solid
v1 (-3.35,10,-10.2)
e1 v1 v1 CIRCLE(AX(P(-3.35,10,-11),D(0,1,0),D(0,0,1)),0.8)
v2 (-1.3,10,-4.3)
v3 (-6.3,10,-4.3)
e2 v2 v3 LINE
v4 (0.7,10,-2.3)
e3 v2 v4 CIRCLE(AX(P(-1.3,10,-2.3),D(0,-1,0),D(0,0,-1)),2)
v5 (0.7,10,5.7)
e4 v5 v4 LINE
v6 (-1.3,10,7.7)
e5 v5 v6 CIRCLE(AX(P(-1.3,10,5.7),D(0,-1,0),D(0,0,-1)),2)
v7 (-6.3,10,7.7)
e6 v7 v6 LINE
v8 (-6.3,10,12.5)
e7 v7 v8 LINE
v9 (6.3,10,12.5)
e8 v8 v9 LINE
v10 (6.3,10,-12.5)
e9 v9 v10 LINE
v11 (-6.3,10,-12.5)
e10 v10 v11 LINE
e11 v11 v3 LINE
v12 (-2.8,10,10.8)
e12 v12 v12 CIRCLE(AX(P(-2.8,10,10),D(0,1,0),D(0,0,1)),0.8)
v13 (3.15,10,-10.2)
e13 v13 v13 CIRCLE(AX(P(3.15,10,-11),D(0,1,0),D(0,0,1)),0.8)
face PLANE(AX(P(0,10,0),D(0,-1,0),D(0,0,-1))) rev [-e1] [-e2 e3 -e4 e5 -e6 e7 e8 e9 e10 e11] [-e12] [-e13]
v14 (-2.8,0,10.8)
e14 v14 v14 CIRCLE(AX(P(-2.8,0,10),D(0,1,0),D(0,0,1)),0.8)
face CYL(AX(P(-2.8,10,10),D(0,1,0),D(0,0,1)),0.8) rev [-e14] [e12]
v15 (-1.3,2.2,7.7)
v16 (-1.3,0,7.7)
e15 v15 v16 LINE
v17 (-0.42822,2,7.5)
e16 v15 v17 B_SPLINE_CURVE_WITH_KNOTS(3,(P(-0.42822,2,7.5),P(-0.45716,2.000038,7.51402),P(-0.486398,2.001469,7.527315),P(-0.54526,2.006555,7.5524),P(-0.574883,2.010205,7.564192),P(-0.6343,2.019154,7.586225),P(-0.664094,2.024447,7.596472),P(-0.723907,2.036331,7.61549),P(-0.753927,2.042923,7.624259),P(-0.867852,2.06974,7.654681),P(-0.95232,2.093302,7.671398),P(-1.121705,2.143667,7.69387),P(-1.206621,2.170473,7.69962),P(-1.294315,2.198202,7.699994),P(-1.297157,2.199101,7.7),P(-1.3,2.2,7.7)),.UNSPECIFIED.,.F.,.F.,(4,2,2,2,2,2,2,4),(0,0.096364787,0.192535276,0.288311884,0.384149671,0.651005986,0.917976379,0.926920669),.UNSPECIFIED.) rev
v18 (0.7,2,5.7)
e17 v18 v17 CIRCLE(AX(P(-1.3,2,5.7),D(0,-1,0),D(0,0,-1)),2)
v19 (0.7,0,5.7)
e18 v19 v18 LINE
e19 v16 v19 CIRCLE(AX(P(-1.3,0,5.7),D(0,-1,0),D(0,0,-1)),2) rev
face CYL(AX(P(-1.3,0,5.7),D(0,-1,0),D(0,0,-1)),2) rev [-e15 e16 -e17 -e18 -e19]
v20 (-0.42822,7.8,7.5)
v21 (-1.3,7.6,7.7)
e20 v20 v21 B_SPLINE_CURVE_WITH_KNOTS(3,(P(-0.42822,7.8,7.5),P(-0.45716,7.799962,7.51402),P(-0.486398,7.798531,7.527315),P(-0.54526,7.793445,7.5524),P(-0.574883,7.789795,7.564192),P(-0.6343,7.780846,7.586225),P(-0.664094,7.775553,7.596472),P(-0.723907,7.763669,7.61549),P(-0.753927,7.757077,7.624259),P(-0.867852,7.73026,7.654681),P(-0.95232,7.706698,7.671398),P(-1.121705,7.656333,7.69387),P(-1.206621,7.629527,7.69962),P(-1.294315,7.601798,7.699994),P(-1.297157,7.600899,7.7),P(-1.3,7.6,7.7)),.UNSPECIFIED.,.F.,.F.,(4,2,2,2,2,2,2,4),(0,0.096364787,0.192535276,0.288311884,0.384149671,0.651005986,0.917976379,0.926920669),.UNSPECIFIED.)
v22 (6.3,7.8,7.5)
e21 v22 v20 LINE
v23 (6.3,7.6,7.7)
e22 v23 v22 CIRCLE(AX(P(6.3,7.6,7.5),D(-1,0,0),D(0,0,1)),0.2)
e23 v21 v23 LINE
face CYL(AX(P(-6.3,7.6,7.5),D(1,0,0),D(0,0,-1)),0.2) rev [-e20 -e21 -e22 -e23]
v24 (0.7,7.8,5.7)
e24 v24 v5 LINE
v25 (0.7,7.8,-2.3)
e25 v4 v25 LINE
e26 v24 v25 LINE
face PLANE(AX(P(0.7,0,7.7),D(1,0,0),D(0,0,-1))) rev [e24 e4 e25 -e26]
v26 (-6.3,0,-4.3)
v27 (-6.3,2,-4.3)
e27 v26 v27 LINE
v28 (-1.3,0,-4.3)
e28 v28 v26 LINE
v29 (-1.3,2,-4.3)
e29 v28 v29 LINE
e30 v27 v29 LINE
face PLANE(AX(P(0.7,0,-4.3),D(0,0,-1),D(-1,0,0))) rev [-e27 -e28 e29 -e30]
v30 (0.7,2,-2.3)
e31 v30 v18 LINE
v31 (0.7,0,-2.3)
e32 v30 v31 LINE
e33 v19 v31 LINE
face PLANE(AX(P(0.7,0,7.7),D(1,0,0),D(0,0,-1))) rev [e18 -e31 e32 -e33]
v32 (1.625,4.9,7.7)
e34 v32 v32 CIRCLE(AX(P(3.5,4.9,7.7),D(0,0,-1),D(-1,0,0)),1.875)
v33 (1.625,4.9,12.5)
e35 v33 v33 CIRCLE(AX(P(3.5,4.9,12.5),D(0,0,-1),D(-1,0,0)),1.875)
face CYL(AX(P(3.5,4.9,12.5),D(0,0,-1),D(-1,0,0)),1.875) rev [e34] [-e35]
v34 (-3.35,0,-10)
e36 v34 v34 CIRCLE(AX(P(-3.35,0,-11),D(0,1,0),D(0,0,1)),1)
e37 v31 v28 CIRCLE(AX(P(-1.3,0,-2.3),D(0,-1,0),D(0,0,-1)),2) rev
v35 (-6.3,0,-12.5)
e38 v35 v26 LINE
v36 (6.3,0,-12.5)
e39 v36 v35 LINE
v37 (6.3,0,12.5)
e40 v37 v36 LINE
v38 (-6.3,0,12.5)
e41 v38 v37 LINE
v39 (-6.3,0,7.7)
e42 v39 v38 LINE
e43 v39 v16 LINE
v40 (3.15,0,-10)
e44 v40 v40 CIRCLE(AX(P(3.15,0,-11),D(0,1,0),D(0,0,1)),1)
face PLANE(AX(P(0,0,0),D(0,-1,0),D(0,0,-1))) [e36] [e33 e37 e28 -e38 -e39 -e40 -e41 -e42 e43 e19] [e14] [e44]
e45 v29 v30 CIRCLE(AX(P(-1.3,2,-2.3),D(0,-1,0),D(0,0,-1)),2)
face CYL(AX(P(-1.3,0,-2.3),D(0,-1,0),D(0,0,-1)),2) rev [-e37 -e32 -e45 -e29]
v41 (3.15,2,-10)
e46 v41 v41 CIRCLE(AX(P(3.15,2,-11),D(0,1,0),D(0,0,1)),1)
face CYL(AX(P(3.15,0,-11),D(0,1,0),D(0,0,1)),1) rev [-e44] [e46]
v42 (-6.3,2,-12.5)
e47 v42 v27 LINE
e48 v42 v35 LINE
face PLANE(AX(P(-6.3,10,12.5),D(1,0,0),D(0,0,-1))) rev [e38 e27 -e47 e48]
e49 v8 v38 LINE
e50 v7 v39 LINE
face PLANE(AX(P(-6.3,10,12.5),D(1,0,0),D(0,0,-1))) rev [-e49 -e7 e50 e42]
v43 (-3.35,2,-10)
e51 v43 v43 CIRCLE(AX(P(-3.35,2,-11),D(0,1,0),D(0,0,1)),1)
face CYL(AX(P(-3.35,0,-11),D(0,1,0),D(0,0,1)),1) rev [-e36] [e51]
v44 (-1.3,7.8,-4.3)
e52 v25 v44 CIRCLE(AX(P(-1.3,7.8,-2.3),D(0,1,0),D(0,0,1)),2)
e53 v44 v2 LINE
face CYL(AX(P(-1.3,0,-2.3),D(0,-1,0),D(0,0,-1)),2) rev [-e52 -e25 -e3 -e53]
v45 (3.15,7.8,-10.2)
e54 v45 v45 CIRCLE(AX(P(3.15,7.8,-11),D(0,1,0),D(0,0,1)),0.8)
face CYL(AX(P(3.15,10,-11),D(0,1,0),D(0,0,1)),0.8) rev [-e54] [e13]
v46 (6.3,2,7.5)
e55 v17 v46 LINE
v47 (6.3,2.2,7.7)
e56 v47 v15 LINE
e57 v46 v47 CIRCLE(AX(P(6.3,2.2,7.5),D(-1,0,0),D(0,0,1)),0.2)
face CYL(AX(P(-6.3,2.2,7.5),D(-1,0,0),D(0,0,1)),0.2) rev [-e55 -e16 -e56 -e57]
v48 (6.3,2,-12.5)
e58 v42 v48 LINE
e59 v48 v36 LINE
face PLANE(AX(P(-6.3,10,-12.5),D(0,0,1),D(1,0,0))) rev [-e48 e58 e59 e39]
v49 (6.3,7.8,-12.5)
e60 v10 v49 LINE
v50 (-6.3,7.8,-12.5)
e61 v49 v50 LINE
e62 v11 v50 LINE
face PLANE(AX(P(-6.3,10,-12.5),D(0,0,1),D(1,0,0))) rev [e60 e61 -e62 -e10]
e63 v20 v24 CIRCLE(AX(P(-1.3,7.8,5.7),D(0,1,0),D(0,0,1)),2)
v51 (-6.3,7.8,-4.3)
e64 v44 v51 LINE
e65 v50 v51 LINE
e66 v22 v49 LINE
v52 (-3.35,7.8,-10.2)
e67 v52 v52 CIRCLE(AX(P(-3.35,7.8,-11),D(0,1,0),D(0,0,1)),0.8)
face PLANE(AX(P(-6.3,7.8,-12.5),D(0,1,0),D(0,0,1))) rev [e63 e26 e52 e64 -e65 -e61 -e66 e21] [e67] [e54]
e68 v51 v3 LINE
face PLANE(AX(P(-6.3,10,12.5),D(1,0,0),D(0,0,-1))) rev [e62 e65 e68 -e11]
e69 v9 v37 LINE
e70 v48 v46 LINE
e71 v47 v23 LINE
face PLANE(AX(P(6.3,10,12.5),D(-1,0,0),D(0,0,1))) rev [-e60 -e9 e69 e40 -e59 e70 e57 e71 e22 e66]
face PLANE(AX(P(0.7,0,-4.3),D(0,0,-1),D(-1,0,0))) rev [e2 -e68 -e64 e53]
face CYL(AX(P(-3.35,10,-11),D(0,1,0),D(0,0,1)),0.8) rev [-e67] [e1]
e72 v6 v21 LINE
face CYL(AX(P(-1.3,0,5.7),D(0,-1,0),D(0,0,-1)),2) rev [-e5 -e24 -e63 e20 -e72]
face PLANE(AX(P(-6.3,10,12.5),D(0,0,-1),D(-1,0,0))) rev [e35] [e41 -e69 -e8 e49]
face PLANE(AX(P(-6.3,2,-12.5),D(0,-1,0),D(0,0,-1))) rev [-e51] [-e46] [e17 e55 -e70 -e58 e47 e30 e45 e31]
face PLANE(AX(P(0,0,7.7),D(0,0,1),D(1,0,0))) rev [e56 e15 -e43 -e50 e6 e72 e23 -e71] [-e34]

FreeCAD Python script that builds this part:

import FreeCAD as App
import Part
import Sketcher
from FreeCAD import Vector


def edges_at(feature, points):
    """Names of the edges that pass closest to the given points."""
    edges = feature.Shape.Edges
    near = lambda p: min(range(len(edges)), key=lambda i: edges[i].distToShape(Part.Vertex(*p))[0])
    return sorted({f"Edge{near(p) + 1}" for p in points})


def add_polygon(sketch, points):
    """Adds a closed chain of lines whose ends are joined by coincident constraints."""
    first, n = sketch.GeometryCount, len(points)
    for a, b in zip(points, points[1:] + points[:1]):
        sketch.addGeometry(Part.LineSegment(App.Vector(*a, 0), App.Vector(*b, 0)), False)
    for i in range(n):
        sketch.addConstraint(Sketcher.Constraint("Coincident", first + i, 2, first + (i + 1) % n, 1))

doc = App.newDocument("Part")
body = doc.addObject("PartDesign::Body", "Body")

sketch1 = body.newObject("Sketcher::SketchObject", "Sketch")
sketch1.AttachmentSupport = (doc.getObject("XZ_Plane"), [""])
sketch1.MapMode = "FlatFace"
add_polygon(sketch1, [(-6, -12), (-6, 12), (6, 12), (6, -12)])
sketch1.addConstraint([
    Sketcher.Constraint("Vertical", 0),
    Sketcher.Constraint("Horizontal", 1),
    Sketcher.Constraint("Vertical", 2),
    Sketcher.Constraint("Horizontal", 3),
    Sketcher.Constraint("Symmetric", 0, 2, 2, 2, -1, 1),
    Sketcher.Constraint("DistanceY", 0, 1, 0, 2, 25.0),
    Sketcher.Constraint("DistanceX", 1, 1, 1, 2, 12.6),
])
pad1 = body.newObject("PartDesign::Pad", "Pad")
pad1.Profile = sketch1
pad1.Length = 10
pad1.Reversed = True

sketch2 = body.newObject("Sketcher::SketchObject", "Sketch001")
sketch2.AttachmentSupport = (doc.getObject("XY_Plane"), [""])
sketch2.MapMode = "FlatFace"
sketch2.AttachmentOffset = App.Placement(Vector(0, 0, 7.7), App.Rotation())
add_polygon(sketch2, [(-6, 8), (-6, 2), (1, 2), (1, 8)])
sketch2.addConstraint([
    Sketcher.Constraint("Vertical", 0),
    Sketcher.Constraint("Horizontal", 1),
    Sketcher.Constraint("Vertical", 2),
    Sketcher.Constraint("Horizontal", 3),
    Sketcher.Constraint("DistanceX", 1, 1, 1, 2, 7.0),
    Sketcher.Constraint("DistanceY", 0, 2, 0, 1, 5.8),
    Sketcher.Constraint("DistanceY", -1, 1, 0, 2, 2.0),
    Sketcher.Constraint("DistanceX", 0, 2, -1, 1, 6.3),
])
pocket1 = body.newObject("PartDesign::Pocket", "Pocket")
pocket1.Profile = sketch2
pocket1.Type = "ThroughAll"

sketch3 = body.newObject("Sketcher::SketchObject", "Sketch002")
sketch3.AttachmentSupport = (doc.getObject("YZ_Plane"), [""])
sketch3.MapMode = "FlatFace"
sketch3.AttachmentOffset = App.Placement(Vector(0, 0, 0.7), App.Rotation())
add_polygon(sketch3, [(8, -12), (2, -12), (2, 8), (8, 8)])
sketch3.addConstraint([
    Sketcher.Constraint("Horizontal", 0),
    Sketcher.Constraint("Vertical", 1),
    Sketcher.Constraint("Horizontal", 2),
    Sketcher.Constraint("Vertical", 3),
    Sketcher.Constraint("DistanceX", 0, 2, 0, 1, 5.8),
    Sketcher.Constraint("DistanceY", 1, 1, 1, 2, 20.2),
    Sketcher.Constraint("DistanceX", -1, 1, 0, 2, 2.0),
    Sketcher.Constraint("DistanceY", 0, 2, -1, 1, 12.5),
])
pocket2 = body.newObject("PartDesign::Pocket", "Pocket001")
pocket2.Profile = sketch3
pocket2.Type = "ThroughAll"
pocket2.Reversed = True

sketch4 = body.newObject("Sketcher::SketchObject", "Sketch003")
sketch4.AttachmentSupport = (doc.getObject("XZ_Plane"), [""])
sketch4.MapMode = "FlatFace"
sketch4.AttachmentOffset = App.Placement(Vector(0, 0, -2), App.Rotation())
sketch4.addGeometry([
    Part.Circle(Vector(3.1, -11, 0), Vector(0, 0, 1), 1),
    Part.Circle(Vector(-3.4, -11, 0), Vector(0, 0, 1), 1),
], False)
sketch4.addConstraint([
    Sketcher.Constraint("Equal", 0, 1),
    Sketcher.Constraint("Horizontal", 0, 3, 1, 3),
    Sketcher.Constraint("Diameter", 0, 2.0),
    Sketcher.Constraint("DistanceY", 0, 3, -1, 1, 11.0),
    Sketcher.Constraint("DistanceX", 1, 3, 0, 3, 6.5),
    Sketcher.Constraint("DistanceX", -1, 1, 0, 3, 3.15),
])
pocket3 = body.newObject("PartDesign::Pocket", "Pocket002")
pocket3.Profile = sketch4
pocket3.Type = "ThroughAll"
pocket3.Reversed = True

sketch5 = body.newObject("Sketcher::SketchObject", "Sketch004")
sketch5.AttachmentSupport = (doc.getObject("XZ_Plane"), [""])
sketch5.MapMode = "FlatFace"
sketch5.AttachmentOffset = App.Placement(Vector(0, 0, -10), App.Rotation())
sketch5.addGeometry([
    Part.Circle(Vector(3.1, -11, 0), Vector(0, 0, 1), 0.8),
    Part.Circle(Vector(-3.4, -11, 0), Vector(0, 0, 1), 0.8),
], False)
sketch5.addConstraint([
    Sketcher.Constraint("Equal", 0, 1),
    Sketcher.Constraint("Horizontal", 0, 3, 1, 3),
    Sketcher.Constraint("Diameter", 0, 1.6),
    Sketcher.Constraint("DistanceY", 0, 3, -1, 1, 11.0),
    Sketcher.Constraint("DistanceX", 1, 3, 0, 3, 6.5),
    Sketcher.Constraint("DistanceX", -1, 1, 0, 3, 3.15),
])
doc.recompute()
hole = body.newObject("PartDesign::Hole", "Hole")
hole.Profile = sketch5
hole.ThreadType = "None"
hole.Diameter = 1.6
hole.DepthType = "ThroughAll"
hole.Reversed = True

sketch6 = body.newObject("Sketcher::SketchObject", "Sketch005")
sketch6.AttachmentSupport = (doc.getObject("XZ_Plane"), [""])
sketch6.MapMode = "FlatFace"
sketch6.AttachmentOffset = App.Placement(Vector(0, 0, -2), App.Rotation())
add_polygon(sketch6, [(-6, -4), (-6, 8), (1, 8), (1, -4)])
sketch6.addConstraint([
    Sketcher.Constraint("Vertical", 0),
    Sketcher.Constraint("Horizontal", 1),
    Sketcher.Constraint("Vertical", 2),
    Sketcher.Constraint("Horizontal", 3),
    Sketcher.Constraint("DistanceX", 1, 1, 1, 2, 7.0),
    Sketcher.Constraint("DistanceY", 0, 1, 0, 2, 12.0),
    Sketcher.Constraint("DistanceX", 0, 2, -1, 1, 6.3),
    Sketcher.Constraint("DistanceY", -1, 1, 0, 2, 7.7),
])
pocket4 = body.newObject("PartDesign::Pocket", "Pocket003")
pocket4.Profile = sketch6
pocket4.Type = "ThroughAll"
pocket4.Midplane = True
doc.recompute()

fillet = body.newObject("PartDesign::Fillet", "Fillet")
fillet.Base = (pocket4, edges_at(pocket4, [
    (0.7, 8.9, 7.7),
    (0.7, 1, 7.7),
    (0.7, 8.9, -4.3),
    (0.7, 1, -4.3),
]))
fillet.Radius = 2

sketch7 = body.newObject("Sketcher::SketchObject", "Sketch006")
sketch7.AttachmentSupport = (doc.getObject("XY_Plane"), [""])
sketch7.MapMode = "FlatFace"
sketch7.AttachmentOffset = App.Placement(Vector(0, 0, 7.7), App.Rotation())
sketch7.addGeometry(Part.Circle(Vector(3.5, 4.9, 0), Vector(0, 0, 1), 1.9), False)
sketch7.addConstraint([
    Sketcher.Constraint("Diameter", 0, 3.75),
    Sketcher.Constraint("DistanceX", -1, 1, 0, 3, 3.5),
    Sketcher.Constraint("DistanceY", -1, 1, 0, 3, 4.9),
])
pocket5 = body.newObject("PartDesign::Pocket", "Pocket004")
pocket5.Profile = sketch7
pocket5.Type = "ThroughAll"
pocket5.Reversed = True

sketch8 = body.newObject("Sketcher::SketchObject", "Sketch007")
sketch8.AttachmentSupport = (doc.getObject("XZ_Plane"), [""])
sketch8.MapMode = "FlatFace"
sketch8.AttachmentOffset = App.Placement(Vector(0, 0, -10), App.Rotation())
sketch8.addGeometry(Part.Circle(Vector(-2.8, 10, 0), Vector(0, 0, 1), 0.8), False)
sketch8.addConstraint([
    Sketcher.Constraint("Diameter", 0, 1.6),
    Sketcher.Constraint("DistanceY", -1, 1, 0, 3, 10.0),
    Sketcher.Constraint("DistanceX", 0, 3, -1, 1, 2.8),
])
doc.recompute()
hole2 = body.newObject("PartDesign::Hole", "Hole001")
hole2.Profile = sketch8
hole2.ThreadType = "None"
hole2.Diameter = 1.6
hole2.DepthType = "ThroughAll"
hole2.Reversed = True
doc.recompute()

fillet2 = body.newObject("PartDesign::Fillet", "Fillet001")
fillet2.Base = (hole2, edges_at(hole2, [(2.5, 7.8, 7.7), (2.5, 2, 7.7)]))
fillet2.Radius = 0.2

doc.recompute()
